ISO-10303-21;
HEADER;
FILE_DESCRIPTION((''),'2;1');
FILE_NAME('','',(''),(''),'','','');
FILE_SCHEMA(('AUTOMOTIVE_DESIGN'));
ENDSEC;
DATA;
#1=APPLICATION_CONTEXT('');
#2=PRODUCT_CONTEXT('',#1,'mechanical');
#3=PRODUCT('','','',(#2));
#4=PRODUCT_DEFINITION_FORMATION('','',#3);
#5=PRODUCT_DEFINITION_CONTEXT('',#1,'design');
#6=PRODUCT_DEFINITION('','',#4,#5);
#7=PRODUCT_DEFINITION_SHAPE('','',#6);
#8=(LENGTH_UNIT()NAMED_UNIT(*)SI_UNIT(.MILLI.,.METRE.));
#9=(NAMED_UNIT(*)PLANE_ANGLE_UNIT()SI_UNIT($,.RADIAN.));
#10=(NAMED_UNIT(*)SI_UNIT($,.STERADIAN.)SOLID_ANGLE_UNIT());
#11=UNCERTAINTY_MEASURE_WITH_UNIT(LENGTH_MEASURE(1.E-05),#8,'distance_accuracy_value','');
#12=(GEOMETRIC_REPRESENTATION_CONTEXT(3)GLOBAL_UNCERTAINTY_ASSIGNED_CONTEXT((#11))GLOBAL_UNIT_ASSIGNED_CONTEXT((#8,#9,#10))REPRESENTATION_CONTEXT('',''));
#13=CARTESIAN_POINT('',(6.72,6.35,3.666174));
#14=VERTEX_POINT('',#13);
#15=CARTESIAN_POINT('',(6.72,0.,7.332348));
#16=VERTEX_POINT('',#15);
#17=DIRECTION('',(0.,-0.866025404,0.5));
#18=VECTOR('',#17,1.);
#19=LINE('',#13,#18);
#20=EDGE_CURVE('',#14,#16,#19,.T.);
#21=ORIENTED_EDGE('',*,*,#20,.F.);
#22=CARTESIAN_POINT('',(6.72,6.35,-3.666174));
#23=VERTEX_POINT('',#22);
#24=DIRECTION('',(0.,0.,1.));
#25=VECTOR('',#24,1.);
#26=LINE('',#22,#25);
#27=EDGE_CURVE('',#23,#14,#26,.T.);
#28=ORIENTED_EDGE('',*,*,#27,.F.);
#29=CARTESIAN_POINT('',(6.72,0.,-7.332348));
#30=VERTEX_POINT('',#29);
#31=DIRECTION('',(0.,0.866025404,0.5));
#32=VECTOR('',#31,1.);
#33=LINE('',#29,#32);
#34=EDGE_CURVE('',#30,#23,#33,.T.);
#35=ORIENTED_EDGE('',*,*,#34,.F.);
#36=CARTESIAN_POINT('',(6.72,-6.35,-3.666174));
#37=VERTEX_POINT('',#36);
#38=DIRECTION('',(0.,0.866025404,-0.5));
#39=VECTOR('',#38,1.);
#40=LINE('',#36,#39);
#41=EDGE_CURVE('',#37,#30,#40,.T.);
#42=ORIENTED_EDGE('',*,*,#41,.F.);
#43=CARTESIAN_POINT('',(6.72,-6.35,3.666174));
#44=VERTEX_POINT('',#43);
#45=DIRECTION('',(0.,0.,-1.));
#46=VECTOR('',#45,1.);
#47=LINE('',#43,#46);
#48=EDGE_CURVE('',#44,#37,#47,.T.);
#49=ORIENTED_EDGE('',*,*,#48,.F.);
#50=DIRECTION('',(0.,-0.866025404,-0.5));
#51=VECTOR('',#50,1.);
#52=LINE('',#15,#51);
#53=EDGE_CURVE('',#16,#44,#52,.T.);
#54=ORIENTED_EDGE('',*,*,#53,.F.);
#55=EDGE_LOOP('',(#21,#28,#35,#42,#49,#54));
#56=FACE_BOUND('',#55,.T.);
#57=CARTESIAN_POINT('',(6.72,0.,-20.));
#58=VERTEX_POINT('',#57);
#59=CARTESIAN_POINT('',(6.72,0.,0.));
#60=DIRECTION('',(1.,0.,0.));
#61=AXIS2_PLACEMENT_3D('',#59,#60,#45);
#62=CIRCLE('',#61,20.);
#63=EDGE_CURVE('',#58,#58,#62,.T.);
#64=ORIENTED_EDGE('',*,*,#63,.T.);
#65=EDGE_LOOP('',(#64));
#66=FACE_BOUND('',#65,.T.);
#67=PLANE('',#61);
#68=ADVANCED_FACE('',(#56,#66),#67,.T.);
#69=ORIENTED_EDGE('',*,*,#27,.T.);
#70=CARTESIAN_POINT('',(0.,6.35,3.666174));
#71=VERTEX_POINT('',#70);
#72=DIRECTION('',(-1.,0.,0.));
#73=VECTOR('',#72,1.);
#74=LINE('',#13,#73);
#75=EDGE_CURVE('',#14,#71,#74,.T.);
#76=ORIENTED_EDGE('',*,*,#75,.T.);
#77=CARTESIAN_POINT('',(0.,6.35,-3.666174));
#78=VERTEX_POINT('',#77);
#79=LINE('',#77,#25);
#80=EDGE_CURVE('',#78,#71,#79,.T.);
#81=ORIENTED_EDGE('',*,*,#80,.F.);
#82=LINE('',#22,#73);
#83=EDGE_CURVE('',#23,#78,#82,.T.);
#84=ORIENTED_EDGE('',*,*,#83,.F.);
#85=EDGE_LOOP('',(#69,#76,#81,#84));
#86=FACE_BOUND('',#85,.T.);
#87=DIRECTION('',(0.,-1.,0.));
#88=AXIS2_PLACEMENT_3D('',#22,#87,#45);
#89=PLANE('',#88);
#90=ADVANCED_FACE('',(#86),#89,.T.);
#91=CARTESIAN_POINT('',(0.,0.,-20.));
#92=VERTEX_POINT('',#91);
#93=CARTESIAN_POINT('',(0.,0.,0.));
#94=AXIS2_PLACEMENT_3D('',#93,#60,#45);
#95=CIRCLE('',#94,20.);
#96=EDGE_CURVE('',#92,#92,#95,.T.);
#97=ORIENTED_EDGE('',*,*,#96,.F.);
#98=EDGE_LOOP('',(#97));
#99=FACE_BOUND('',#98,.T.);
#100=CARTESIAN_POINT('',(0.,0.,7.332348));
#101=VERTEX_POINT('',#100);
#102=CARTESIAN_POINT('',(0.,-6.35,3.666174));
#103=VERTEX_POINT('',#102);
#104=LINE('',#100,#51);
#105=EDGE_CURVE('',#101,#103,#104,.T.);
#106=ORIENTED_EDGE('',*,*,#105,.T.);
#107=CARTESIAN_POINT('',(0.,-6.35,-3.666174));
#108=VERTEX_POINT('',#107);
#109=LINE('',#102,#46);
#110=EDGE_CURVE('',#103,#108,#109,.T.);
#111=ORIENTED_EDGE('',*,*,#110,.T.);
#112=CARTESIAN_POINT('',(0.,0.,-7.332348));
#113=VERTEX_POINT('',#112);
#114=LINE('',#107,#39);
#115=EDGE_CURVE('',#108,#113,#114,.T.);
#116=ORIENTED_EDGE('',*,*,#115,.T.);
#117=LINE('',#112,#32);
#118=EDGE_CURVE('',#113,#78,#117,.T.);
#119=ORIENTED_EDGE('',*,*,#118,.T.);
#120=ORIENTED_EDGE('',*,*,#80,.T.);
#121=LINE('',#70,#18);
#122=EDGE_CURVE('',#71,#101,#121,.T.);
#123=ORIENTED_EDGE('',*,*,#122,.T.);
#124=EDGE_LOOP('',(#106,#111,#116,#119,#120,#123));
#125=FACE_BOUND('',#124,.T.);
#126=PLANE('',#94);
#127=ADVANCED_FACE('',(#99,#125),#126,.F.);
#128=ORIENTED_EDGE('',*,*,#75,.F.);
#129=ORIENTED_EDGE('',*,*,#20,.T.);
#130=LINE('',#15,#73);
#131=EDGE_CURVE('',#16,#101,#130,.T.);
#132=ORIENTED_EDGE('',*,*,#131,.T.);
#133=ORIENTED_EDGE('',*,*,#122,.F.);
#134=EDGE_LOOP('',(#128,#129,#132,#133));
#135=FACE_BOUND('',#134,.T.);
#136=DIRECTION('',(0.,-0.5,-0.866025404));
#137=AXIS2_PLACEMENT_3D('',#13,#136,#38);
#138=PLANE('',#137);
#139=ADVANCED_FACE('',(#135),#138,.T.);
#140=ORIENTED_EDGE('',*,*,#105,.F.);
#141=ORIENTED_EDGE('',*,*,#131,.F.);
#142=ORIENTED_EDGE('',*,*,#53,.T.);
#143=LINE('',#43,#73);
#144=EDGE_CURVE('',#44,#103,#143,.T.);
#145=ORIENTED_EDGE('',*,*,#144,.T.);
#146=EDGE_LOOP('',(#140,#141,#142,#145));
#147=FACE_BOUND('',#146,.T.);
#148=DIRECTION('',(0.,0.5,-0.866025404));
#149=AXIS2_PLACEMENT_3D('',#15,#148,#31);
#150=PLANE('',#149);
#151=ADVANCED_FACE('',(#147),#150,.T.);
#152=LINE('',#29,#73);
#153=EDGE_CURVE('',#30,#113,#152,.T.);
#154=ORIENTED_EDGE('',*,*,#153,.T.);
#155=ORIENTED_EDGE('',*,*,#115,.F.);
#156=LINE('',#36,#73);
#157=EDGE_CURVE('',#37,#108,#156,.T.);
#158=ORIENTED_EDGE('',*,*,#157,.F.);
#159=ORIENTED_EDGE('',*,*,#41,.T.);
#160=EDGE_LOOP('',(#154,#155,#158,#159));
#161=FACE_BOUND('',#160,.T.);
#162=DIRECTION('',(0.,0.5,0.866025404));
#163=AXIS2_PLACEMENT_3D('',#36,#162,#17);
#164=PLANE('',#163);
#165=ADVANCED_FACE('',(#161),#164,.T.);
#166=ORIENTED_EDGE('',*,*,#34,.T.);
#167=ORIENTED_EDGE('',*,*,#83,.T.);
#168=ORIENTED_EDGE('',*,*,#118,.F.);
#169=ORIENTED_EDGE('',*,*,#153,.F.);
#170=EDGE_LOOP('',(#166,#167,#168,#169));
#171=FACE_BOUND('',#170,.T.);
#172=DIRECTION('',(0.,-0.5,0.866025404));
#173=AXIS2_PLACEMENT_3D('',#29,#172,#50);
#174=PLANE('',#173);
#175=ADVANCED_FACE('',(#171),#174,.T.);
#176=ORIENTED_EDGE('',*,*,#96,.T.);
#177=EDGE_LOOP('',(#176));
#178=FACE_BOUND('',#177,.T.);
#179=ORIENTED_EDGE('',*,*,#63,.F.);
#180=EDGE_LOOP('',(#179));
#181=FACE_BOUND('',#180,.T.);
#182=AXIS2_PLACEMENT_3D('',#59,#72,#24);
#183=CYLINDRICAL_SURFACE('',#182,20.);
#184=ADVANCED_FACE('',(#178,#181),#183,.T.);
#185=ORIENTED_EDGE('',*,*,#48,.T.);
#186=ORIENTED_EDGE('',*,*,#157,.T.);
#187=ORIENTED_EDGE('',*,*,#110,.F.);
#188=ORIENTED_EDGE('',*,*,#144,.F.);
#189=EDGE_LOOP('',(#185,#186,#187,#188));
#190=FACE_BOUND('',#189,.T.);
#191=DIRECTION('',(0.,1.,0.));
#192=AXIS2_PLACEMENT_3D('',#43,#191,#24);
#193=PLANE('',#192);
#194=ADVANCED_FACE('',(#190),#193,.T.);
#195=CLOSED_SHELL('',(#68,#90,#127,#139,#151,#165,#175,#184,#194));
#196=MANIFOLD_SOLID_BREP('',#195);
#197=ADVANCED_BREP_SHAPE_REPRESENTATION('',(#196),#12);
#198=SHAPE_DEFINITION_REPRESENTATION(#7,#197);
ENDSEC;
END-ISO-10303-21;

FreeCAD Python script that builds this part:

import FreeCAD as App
import Part
import Sketcher

V = App.Vector
Q = App.Units.Quantity


def add_polygon(sketch, points):
    """Adds a closed chain of lines whose ends are joined by coincident constraints."""
    first, n = sketch.GeometryCount, len(points)
    for a, b in zip(points, points[1:] + points[:1]):
        sketch.addGeometry(Part.LineSegment(App.Vector(*a, 0), App.Vector(*b, 0)), False)
    for i in range(n):
        sketch.addConstraint(Sketcher.Constraint("Coincident", first + i, 2, first + (i + 1) % n, 1))

doc = App.newDocument("Part")
body = doc.addObject("PartDesign::Body", "Body")

sketch1 = doc.addObject("Sketcher::SketchObject", "Sketch")
body.addObject(sketch1)
sketch1.AttachmentSupport = (doc.YZ_Plane, [""])
sketch1.MapMode = "FlatFace"
sketch1.addGeometry(Part.Circle(V(0, 0, 0), V(0, 0, 1), 20), False)
add_polygon(sketch1, [(6, -4), (0, -7), (-6, -4), (-6, 4), (0, 7), (6, 4)])
sketch1.addConstraint([
    Sketcher.Constraint("Vertical", 3),
    Sketcher.Constraint("Vertical", 6),
    Sketcher.Constraint("Coincident", 0, 3, -1, 1),
    Sketcher.Constraint("Symmetric", 1, 2, 4, 2, -1, 1),
    Sketcher.Constraint("Symmetric", 2, 2, 5, 2, -1, 1),
    Sketcher.Constraint("PointOnObject", 1, 2, -2),
    Sketcher.Constraint("Parallel", 1, 4),
    Sketcher.Constraint("Horizontal", 3, 2, 5, 2),
    Sketcher.Constraint("Diameter", 0, 40.0),
    Sketcher.Constraint("Angle", 1, Q("-150 deg")),
    Sketcher.Constraint("DistanceX", 3, 2, 5, 2, 12.7),
    Sketcher.Constraint("DistanceY", 3, 1, 3, 2, 7.332348),
])
pad1 = doc.addObject("PartDesign::Pad", "Pad")
body.addObject(pad1)
pad1.Profile = sketch1
pad1.Length = 6.72

doc.recompute()
